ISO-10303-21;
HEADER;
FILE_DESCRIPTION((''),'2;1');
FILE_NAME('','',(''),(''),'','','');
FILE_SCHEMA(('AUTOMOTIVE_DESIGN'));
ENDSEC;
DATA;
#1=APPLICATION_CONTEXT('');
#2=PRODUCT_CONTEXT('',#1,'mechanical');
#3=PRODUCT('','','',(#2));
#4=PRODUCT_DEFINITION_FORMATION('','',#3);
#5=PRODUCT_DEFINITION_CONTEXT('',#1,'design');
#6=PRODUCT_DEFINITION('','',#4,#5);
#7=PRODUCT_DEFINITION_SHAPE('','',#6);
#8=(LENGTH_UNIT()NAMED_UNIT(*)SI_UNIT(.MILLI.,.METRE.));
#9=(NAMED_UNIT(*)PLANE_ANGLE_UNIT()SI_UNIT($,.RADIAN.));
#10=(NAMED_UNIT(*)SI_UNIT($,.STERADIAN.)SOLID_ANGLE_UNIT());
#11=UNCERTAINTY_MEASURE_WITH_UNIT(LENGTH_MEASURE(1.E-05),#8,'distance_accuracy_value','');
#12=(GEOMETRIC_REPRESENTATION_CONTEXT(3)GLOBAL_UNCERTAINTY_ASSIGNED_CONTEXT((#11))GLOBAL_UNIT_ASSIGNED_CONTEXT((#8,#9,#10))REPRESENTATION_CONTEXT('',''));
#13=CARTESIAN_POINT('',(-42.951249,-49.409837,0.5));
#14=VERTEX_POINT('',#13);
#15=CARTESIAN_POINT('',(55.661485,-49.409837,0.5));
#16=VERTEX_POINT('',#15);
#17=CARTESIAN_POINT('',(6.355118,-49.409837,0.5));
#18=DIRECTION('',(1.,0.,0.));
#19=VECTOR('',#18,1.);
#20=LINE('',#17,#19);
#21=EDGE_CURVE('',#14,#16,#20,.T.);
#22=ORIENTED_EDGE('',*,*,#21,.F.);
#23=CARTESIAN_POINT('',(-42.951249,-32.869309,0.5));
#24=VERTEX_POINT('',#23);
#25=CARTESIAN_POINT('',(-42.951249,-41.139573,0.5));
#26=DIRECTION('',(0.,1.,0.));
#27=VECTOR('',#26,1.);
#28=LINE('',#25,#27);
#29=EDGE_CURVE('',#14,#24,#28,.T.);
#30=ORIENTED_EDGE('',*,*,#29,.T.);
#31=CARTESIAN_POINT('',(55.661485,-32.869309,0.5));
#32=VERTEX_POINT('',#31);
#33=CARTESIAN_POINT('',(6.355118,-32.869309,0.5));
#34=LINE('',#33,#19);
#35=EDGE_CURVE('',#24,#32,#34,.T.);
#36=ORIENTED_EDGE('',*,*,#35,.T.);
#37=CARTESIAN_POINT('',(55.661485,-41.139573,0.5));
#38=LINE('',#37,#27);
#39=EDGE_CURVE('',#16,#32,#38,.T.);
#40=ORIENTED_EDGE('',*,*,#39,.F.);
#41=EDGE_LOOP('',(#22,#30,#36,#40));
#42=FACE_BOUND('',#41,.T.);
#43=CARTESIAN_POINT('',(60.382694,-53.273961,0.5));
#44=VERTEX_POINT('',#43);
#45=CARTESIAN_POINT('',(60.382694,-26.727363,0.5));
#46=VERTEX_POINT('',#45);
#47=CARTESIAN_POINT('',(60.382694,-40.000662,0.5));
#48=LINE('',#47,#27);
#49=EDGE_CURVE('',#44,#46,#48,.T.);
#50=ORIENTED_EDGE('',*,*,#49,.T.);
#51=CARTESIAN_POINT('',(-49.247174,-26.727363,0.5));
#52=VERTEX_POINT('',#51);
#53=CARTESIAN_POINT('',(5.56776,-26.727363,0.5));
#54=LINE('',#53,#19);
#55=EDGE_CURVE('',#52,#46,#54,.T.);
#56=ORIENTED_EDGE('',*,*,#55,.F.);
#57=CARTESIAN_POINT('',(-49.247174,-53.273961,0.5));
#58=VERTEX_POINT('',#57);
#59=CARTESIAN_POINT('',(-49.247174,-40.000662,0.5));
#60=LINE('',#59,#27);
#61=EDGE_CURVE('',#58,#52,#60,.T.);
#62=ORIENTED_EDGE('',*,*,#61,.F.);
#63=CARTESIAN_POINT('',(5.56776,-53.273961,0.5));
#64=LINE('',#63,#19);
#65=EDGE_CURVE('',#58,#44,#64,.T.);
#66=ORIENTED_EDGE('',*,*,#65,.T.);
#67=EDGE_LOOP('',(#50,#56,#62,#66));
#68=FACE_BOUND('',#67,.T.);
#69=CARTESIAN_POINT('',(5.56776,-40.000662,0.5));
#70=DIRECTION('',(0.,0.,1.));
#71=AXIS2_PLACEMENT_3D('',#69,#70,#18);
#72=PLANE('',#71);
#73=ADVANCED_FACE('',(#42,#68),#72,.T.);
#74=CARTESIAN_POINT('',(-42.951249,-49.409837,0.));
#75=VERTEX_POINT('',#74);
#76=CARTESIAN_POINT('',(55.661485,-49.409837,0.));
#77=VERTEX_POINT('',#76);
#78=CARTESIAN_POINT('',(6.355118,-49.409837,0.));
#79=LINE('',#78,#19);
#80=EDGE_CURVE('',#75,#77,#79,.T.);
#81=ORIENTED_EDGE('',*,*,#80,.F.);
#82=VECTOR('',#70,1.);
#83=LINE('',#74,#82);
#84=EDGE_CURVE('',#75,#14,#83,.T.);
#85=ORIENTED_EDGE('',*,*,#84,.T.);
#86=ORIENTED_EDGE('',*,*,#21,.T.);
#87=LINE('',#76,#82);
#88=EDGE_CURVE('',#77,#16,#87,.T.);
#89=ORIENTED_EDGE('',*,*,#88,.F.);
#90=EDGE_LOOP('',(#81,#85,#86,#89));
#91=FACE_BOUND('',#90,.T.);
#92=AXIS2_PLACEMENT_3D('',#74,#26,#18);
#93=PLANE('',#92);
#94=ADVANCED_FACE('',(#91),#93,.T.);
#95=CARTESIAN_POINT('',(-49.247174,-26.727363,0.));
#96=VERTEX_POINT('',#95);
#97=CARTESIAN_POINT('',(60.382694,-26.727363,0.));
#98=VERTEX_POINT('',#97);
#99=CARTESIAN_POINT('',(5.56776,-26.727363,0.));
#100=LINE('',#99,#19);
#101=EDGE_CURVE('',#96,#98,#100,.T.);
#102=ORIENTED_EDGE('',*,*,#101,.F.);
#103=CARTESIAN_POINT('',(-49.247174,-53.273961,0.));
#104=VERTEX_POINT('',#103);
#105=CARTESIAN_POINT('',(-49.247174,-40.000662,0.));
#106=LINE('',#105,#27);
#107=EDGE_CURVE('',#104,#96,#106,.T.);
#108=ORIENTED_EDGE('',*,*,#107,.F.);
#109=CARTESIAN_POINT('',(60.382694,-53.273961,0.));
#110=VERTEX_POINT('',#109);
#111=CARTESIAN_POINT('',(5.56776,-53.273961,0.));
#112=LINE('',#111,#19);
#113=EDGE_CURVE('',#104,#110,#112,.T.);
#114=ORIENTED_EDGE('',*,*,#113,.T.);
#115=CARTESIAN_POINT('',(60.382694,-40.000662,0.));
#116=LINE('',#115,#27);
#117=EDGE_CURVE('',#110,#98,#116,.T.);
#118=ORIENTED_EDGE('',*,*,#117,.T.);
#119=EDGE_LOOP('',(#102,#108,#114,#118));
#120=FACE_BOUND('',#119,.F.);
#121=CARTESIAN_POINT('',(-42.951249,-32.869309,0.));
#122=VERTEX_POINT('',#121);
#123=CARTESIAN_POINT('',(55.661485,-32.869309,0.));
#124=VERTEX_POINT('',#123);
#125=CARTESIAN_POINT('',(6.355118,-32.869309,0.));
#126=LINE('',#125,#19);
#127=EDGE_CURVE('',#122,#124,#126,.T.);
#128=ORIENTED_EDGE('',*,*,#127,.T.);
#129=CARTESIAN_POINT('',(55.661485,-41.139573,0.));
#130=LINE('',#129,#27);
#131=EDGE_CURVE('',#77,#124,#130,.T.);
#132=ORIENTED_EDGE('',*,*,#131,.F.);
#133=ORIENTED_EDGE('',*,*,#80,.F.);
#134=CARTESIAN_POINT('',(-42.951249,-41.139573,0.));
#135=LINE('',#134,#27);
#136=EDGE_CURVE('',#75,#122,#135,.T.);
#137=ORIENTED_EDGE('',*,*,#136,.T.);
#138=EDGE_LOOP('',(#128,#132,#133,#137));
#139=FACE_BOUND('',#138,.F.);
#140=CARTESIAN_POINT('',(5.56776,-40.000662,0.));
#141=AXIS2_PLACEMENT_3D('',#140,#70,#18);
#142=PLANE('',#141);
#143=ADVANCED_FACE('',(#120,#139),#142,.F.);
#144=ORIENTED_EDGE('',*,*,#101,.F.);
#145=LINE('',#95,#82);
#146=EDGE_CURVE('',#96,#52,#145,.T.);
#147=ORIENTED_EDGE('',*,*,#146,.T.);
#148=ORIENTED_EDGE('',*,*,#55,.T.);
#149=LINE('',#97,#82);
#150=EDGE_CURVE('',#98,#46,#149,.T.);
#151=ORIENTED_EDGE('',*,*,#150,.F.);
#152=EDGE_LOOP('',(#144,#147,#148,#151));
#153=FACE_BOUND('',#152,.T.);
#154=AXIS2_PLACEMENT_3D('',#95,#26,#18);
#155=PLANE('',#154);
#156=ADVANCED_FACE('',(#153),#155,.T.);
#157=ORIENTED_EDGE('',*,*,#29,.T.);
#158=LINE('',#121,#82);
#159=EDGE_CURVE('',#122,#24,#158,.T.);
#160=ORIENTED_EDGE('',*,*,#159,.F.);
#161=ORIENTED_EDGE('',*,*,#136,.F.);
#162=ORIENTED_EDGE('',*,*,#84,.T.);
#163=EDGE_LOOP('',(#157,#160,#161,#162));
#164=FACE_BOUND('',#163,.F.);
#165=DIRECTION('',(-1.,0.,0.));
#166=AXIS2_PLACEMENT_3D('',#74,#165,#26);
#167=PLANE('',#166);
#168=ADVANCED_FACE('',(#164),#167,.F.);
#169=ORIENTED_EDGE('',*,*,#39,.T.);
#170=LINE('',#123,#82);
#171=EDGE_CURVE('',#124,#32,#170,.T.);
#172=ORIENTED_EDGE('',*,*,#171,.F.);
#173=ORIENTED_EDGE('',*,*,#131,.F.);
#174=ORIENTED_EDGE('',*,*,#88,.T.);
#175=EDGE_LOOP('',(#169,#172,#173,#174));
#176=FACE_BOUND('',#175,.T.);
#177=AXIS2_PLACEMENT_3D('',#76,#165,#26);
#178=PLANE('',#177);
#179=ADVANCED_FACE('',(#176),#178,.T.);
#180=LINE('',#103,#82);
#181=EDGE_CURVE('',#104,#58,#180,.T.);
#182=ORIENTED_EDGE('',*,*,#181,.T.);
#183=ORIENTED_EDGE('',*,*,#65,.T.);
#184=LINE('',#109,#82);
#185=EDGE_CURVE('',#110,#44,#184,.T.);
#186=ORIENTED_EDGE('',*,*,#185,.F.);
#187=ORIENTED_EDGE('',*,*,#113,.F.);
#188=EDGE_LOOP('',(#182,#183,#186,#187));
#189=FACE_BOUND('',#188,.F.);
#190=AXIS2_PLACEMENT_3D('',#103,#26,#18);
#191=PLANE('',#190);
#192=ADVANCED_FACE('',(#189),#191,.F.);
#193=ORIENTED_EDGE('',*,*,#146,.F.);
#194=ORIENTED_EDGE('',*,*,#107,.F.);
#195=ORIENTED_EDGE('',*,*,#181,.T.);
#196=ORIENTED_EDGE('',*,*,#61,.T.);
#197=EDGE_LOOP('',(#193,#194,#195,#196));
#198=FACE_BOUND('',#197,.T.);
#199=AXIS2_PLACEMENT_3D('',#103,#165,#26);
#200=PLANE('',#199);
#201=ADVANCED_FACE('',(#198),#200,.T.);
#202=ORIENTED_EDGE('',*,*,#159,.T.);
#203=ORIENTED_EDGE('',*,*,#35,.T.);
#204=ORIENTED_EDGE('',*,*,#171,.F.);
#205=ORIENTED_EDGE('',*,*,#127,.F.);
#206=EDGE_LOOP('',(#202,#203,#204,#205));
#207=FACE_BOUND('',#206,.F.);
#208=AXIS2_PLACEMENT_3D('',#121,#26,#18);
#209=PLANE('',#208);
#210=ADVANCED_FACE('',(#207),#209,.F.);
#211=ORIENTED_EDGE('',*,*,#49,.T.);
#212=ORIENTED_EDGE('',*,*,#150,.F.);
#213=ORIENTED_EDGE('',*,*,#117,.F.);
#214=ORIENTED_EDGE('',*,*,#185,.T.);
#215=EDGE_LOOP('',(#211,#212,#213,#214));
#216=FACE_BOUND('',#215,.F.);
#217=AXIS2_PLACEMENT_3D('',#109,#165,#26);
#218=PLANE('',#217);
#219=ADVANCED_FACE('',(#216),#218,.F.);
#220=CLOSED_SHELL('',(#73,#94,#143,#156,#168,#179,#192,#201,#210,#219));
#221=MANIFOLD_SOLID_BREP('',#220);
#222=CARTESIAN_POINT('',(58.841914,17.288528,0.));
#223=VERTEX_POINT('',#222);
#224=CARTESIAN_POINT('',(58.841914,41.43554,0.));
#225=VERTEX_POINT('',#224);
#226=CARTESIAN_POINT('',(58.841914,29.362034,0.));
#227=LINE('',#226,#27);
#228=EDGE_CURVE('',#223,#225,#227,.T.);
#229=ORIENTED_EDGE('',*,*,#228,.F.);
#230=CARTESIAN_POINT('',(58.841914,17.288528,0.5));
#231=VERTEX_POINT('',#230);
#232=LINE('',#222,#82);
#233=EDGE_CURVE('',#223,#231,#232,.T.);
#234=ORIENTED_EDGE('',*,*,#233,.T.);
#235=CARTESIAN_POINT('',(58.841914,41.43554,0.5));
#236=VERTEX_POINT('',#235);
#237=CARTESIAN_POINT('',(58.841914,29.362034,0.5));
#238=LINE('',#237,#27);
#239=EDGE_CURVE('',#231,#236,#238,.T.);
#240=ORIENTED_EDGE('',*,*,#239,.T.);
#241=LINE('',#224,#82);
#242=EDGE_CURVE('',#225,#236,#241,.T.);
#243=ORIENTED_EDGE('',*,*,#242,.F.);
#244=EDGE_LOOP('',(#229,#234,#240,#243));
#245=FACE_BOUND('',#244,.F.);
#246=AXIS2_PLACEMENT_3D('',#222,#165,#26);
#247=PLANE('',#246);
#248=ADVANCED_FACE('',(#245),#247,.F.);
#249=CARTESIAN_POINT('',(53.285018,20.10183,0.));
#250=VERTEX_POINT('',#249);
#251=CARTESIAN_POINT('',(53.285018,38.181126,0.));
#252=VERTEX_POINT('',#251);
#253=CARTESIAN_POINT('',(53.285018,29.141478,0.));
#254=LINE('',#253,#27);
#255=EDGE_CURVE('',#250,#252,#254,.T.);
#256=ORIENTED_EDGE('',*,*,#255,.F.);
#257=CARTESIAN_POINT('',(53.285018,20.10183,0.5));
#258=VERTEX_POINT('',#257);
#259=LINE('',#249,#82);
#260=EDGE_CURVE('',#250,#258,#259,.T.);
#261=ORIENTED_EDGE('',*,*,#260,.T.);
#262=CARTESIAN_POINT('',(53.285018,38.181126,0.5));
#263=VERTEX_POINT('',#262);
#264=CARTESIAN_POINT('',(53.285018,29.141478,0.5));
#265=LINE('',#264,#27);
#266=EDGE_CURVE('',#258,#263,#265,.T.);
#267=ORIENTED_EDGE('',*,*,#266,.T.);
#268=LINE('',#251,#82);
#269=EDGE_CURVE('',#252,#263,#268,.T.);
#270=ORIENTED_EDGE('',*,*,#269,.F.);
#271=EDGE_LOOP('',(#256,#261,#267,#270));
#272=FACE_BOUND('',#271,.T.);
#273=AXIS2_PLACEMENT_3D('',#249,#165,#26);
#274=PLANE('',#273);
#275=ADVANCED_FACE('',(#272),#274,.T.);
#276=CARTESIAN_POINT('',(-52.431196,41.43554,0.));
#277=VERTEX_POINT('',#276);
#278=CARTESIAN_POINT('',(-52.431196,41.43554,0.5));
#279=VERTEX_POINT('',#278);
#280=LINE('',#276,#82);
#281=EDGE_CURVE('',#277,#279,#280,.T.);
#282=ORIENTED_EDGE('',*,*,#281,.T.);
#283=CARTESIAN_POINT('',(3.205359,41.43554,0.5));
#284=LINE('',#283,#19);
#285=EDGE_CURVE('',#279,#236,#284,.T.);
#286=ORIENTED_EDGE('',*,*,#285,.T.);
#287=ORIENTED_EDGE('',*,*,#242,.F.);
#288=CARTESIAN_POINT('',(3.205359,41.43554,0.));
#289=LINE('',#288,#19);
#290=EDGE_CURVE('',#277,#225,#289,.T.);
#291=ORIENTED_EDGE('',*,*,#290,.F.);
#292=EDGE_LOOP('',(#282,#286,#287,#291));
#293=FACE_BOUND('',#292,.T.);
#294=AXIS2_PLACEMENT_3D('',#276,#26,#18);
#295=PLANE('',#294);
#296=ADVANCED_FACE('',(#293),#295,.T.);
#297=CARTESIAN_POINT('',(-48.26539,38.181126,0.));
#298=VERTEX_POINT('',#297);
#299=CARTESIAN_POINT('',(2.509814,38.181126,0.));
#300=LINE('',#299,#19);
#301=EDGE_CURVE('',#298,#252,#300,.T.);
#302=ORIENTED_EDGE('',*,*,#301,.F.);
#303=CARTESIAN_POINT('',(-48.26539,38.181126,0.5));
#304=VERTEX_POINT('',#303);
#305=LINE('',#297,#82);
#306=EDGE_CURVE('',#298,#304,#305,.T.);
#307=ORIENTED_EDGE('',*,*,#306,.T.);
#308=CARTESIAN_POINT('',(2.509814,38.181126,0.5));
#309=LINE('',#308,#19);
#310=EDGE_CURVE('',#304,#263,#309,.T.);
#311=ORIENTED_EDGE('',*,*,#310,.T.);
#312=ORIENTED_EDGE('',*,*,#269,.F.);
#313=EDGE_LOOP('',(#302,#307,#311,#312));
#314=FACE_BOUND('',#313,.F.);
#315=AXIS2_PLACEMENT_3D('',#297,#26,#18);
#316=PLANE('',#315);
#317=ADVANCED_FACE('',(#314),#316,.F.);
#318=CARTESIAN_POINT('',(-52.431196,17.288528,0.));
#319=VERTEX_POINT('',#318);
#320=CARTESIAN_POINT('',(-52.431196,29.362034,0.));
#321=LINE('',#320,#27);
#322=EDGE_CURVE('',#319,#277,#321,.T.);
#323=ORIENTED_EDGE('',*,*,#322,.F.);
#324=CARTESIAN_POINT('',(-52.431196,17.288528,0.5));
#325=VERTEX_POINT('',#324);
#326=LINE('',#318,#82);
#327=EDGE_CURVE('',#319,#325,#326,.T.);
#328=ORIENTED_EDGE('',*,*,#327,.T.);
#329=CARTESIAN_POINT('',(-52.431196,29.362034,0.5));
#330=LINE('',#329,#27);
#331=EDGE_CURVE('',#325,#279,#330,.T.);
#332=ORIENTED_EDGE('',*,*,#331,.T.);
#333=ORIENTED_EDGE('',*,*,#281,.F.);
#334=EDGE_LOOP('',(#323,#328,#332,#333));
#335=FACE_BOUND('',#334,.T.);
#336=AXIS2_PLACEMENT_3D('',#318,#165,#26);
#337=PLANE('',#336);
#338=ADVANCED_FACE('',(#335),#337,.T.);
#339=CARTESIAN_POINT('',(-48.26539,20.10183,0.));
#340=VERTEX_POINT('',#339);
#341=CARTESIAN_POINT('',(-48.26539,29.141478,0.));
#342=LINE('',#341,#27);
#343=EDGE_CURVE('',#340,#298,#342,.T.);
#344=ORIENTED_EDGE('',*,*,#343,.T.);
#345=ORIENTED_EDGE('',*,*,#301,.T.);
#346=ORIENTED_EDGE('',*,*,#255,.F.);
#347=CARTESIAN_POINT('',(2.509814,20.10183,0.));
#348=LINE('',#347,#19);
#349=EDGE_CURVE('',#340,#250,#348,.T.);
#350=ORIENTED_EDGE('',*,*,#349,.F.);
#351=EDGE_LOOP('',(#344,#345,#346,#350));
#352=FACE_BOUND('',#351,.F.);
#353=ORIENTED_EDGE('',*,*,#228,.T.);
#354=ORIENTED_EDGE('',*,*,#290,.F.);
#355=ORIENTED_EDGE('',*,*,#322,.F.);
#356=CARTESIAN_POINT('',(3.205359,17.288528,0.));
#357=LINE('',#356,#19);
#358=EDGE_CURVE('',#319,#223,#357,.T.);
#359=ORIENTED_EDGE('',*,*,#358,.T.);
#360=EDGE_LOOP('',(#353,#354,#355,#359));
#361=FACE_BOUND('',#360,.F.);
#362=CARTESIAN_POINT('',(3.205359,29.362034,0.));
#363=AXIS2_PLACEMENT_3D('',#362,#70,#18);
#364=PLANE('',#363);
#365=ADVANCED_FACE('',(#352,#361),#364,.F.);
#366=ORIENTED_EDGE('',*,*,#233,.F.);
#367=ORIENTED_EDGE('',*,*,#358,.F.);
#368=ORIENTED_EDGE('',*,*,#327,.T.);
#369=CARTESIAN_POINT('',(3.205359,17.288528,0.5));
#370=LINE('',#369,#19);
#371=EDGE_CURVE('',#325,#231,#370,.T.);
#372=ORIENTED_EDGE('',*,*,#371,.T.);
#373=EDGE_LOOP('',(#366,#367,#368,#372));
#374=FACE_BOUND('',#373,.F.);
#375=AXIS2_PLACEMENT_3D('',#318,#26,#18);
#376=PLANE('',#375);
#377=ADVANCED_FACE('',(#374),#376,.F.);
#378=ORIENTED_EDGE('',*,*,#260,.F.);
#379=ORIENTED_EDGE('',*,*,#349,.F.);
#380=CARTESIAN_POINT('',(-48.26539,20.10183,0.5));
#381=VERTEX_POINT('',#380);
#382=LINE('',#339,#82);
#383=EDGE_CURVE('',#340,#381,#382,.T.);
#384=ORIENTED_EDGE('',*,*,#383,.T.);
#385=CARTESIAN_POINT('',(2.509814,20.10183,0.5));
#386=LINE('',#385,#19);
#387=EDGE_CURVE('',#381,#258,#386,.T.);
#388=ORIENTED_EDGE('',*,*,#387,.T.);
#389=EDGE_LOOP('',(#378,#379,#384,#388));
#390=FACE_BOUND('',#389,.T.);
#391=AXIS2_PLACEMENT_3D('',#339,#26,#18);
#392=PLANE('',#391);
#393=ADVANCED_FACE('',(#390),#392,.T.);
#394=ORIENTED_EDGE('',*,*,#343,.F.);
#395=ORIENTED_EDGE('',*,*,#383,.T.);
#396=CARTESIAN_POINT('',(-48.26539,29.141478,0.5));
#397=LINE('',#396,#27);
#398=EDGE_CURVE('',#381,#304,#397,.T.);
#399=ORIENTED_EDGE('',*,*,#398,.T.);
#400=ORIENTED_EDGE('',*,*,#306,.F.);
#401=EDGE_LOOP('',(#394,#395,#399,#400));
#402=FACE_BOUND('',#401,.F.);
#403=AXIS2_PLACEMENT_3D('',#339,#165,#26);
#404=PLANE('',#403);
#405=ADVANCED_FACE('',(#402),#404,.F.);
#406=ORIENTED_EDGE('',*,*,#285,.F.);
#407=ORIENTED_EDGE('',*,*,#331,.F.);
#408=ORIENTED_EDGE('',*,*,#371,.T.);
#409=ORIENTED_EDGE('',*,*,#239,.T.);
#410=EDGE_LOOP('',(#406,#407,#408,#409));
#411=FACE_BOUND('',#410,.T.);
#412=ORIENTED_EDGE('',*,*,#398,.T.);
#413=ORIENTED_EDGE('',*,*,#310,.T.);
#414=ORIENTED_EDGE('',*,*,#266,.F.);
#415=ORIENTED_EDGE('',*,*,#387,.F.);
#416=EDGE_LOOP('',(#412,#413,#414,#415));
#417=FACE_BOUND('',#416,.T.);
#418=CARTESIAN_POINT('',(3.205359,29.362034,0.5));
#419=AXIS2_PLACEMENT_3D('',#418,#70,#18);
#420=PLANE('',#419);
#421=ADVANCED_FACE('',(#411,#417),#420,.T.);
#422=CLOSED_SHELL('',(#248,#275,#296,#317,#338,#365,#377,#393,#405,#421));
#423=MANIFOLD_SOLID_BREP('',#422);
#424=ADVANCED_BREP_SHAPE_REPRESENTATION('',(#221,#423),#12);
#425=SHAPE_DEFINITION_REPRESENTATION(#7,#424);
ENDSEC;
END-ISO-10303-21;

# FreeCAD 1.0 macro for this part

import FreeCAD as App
import Part
import Sketcher

V = App.Vector

doc = App.newDocument("Part")
params = doc.addObject("Spreadsheet::Sheet", "Params")
for row, (alias, value) in enumerate([
    ("pad1_length", "0.5 mm"),
], start=1):
    params.set(f"A{row}", alias)
    params.set(f"B{row}", "=" + value)
    params.setAlias(f"B{row}", alias)

body = doc.addObject("PartDesign::Body", "Body")
body.AllowCompound = True

# Sketch on XY plane
sketch1 = doc.addObject("Sketcher::SketchObject", "Sketch")
body.addObject(sketch1)
sketch1.AttachmentSupport = (doc.XY_Plane, [""])
sketch1.MapMode = "FlatFace"
sketch1.addGeometry(Part.LineSegment(V(-52, 41, 0), V(-52, 17, 0)), False)
sketch1.addGeometry(Part.LineSegment(V(-52, 17, 0), V(59, 17, 0)), False)
sketch1.addGeometry(Part.LineSegment(V(59, 17, 0), V(59, 41, 0)), False)
sketch1.addGeometry(Part.LineSegment(V(59, 41, 0), V(-52, 41, 0)), False)
sketch1.addGeometry(Part.LineSegment(V(53, 20, 0), V(-48, 20, 0)), False)
sketch1.addGeometry(Part.LineSegment(V(-48, 20, 0), V(-48, 38, 0)), False)
sketch1.addGeometry(Part.LineSegment(V(-48, 38, 0), V(53, 38, 0)), False)
sketch1.addGeometry(Part.LineSegment(V(53, 38, 0), V(53, 20, 0)), False)
sketch1.addGeometry(Part.LineSegment(V(-49, -27, 0), V(-49, -53, 0)), False)
sketch1.addGeometry(Part.LineSegment(V(-49, -53, 0), V(60, -53, 0)), False)
sketch1.addGeometry(Part.LineSegment(V(60, -53, 0), V(60, -27, 0)), False)
sketch1.addGeometry(Part.LineSegment(V(60, -27, 0), V(-49, -27, 0)), False)
sketch1.addGeometry(Part.LineSegment(V(56, -49, 0), V(-43, -49, 0)), False)
sketch1.addGeometry(Part.LineSegment(V(-43, -49, 0), V(-43, -33, 0)), False)
sketch1.addGeometry(Part.LineSegment(V(-43, -33, 0), V(56, -33, 0)), False)
sketch1.addGeometry(Part.LineSegment(V(56, -33, 0), V(56, -49, 0)), False)
sketch1.addConstraint(Sketcher.Constraint("Coincident", 0, 2, 1, 1))
sketch1.addConstraint(Sketcher.Constraint("Coincident", 1, 2, 2, 1))
sketch1.addConstraint(Sketcher.Constraint("Coincident", 2, 2, 3, 1))
sketch1.addConstraint(Sketcher.Constraint("Coincident", 3, 2, 0, 1))
sketch1.addConstraint(Sketcher.Constraint("Coincident", 4, 2, 5, 1))
sketch1.addConstraint(Sketcher.Constraint("Coincident", 5, 2, 6, 1))
sketch1.addConstraint(Sketcher.Constraint("Coincident", 6, 2, 7, 1))
sketch1.addConstraint(Sketcher.Constraint("Coincident", 7, 2, 4, 1))
sketch1.addConstraint(Sketcher.Constraint("Coincident", 8, 2, 9, 1))
sketch1.addConstraint(Sketcher.Constraint("Coincident", 9, 2, 10, 1))
sketch1.addConstraint(Sketcher.Constraint("Coincident", 10, 2, 11, 1))
sketch1.addConstraint(Sketcher.Constraint("Coincident", 11, 2, 8, 1))
sketch1.addConstraint(Sketcher.Constraint("Coincident", 12, 2, 13, 1))
sketch1.addConstraint(Sketcher.Constraint("Coincident", 13, 2, 14, 1))
sketch1.addConstraint(Sketcher.Constraint("Coincident", 14, 2, 15, 1))
sketch1.addConstraint(Sketcher.Constraint("Coincident", 15, 2, 12, 1))
sketch1.addConstraint(Sketcher.Constraint("Vertical", 0))
sketch1.addConstraint(Sketcher.Constraint("Horizontal", 1))
sketch1.addConstraint(Sketcher.Constraint("Vertical", 2))
sketch1.addConstraint(Sketcher.Constraint("Horizontal", 3))
sketch1.addConstraint(Sketcher.Constraint("Horizontal", 4))
sketch1.addConstraint(Sketcher.Constraint("Vertical", 5))
sketch1.addConstraint(Sketcher.Constraint("Horizontal", 6))
sketch1.addConstraint(Sketcher.Constraint("Vertical", 7))
sketch1.addConstraint(Sketcher.Constraint("Vertical", 8))
sketch1.addConstraint(Sketcher.Constraint("Horizontal", 9))
sketch1.addConstraint(Sketcher.Constraint("Vertical", 10))
sketch1.addConstraint(Sketcher.Constraint("Horizontal", 11))
sketch1.addConstraint(Sketcher.Constraint("Horizontal", 12))
sketch1.addConstraint(Sketcher.Constraint("Vertical", 13))
sketch1.addConstraint(Sketcher.Constraint("Horizontal", 14))
sketch1.addConstraint(Sketcher.Constraint("Vertical", 15))
sketch1.addConstraint(Sketcher.Constraint("DistanceX", 1, 1, 1, 2, 111.27311))
sketch1.addConstraint(Sketcher.Constraint("DistanceX", 4, 2, 4, 1, 101.550408))
sketch1.addConstraint(Sketcher.Constraint("DistanceX", 9, 1, 9, 2, 109.629869))
sketch1.addConstraint(Sketcher.Constraint("DistanceY", 13, 1, 13, 2, 16.540528))
sketch1.addConstraint(Sketcher.Constraint("DistanceY", 0, 2, 4, 2, 2.813302))
sketch1.addConstraint(Sketcher.Constraint("DistanceY", 0, 2, 5, 2, 20.892598))
sketch1.addConstraint(Sketcher.Constraint("DistanceY", 8, 2, 3, 2, 94.709501))
sketch1.addConstraint(Sketcher.Constraint("DistanceX", 12, 2, 12, 1, 98.612734))
sketch1.addConstraint(Sketcher.Constraint("DistanceY", 0, 2, 0, 1, 24.147012))
sketch1.addConstraint(Sketcher.Constraint("DistanceY", 8, 2, 8, 1, 26.546598))
sketch1.addConstraint(Sketcher.Constraint("DistanceY", -1, 1, 2, 2, 41.43554))
sketch1.addConstraint(Sketcher.Constraint("DistanceX", 4, 2, -1, 1, 48.26539))
sketch1.addConstraint(Sketcher.Constraint("DistanceX", 12, 2, -1, 1, 42.951249))
sketch1.addConstraint(Sketcher.Constraint("DistanceY", 13, 2, -1, 1, 32.869309))
sketch1.addConstraint(Sketcher.Constraint("DistanceX", 0, 2, 8, 2, 3.184022))
sketch1.addConstraint(Sketcher.Constraint("DistanceX", 14, 2, 10, 2, 4.72121))
pad1 = doc.addObject("PartDesign::Pad", "Pad")
body.addObject(pad1)
pad1.Profile = sketch1
pad1.setExpression("Length", "Params.pad1_length")

doc.recompute()
